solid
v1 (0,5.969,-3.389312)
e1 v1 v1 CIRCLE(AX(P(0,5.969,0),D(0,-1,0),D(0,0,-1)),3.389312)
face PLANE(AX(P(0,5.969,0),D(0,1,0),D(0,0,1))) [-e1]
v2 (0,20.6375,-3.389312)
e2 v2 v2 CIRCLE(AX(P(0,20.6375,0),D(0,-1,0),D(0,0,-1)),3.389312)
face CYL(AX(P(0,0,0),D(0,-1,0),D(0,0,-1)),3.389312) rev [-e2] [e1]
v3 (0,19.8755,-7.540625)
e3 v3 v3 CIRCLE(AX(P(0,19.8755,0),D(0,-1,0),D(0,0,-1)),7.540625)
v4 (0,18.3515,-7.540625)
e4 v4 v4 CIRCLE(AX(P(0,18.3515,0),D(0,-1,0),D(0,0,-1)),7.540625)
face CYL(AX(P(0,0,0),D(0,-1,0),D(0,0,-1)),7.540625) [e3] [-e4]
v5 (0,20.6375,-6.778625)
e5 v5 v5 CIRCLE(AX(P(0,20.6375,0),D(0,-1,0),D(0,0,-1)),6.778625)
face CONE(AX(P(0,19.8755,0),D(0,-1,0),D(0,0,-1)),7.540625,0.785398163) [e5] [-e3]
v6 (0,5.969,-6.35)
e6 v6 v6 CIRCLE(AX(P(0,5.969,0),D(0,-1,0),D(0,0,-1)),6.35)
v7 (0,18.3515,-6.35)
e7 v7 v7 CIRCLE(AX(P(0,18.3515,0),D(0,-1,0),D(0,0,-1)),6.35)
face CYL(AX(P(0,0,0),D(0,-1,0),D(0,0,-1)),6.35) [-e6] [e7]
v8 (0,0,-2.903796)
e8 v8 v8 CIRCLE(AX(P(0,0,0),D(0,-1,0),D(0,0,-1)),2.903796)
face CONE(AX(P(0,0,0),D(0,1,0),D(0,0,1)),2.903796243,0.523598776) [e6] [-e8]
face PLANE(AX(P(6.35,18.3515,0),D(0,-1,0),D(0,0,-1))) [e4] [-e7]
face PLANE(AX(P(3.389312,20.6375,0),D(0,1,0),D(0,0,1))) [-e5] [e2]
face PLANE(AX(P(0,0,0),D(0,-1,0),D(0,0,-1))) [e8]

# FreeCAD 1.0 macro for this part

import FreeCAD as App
import Part
import Sketcher
from FreeCAD import Vector
Q = App.Units.Quantity


def add_polygon(sketch, points):
    """Adds a closed chain of lines whose ends are joined by coincident constraints."""
    first, n = sketch.GeometryCount, len(points)
    for a, b in zip(points, points[1:] + points[:1]):
        sketch.addGeometry(Part.LineSegment(App.Vector(*a, 0), App.Vector(*b, 0)), False)
    for i in range(n):
        sketch.addConstraint(Sketcher.Constraint("Coincident", first + i, 2, first + (i + 1) % n, 1))

doc = App.newDocument("Part")
body = doc.addObject("PartDesign::Body", "Body")

sketch1 = body.newObject("Sketcher::SketchObject", "Sketch")
sketch1.AttachmentSupport = (doc.getObject("XY_Plane"), [""])
sketch1.MapMode = "FlatFace"
add_polygon(sketch1, [(3.4, 6), (0, 6), (0, 0), (2.9, 0), (6.3, 6), (6.3, 18.4), (7.5, 18.4), (7.5, 19.9), (6.8, 20.6), (3.4, 20.6)])
sketch1.addConstraint([
    Sketcher.Constraint("Horizontal", 0),
    Sketcher.Constraint("Vertical", 1),
    Sketcher.Constraint("Horizontal", 2),
    Sketcher.Constraint("Vertical", 4),
    Sketcher.Constraint("Horizontal", 5),
    Sketcher.Constraint("Vertical", 6),
    Sketcher.Constraint("Horizontal", 8),
    Sketcher.Constraint("Vertical", 9),
    Sketcher.Constraint("Coincident", 1, 2, -1, 1),
    Sketcher.Constraint("Horizontal", 0, 2, 3, 2),
    Sketcher.Constraint("Equal", 0, 8),
    Sketcher.Constraint("Angle", 3, Q("60 deg")),
    Sketcher.Constraint("Angle", 7, Q("135 deg")),
    Sketcher.Constraint("DistanceY", 6, 1, 6, 2, Q("0.06 in")),
    Sketcher.Constraint("DistanceX", 5, 1, 5, 2, Q("0.046875 in")),
    Sketcher.Constraint("DistanceY", 1, 2, 1, 1, Q("0.235 in")),
    Sketcher.Constraint("DistanceX", -1, 1, 3, 2, Q("0.25 in")),
    Sketcher.Constraint("DistanceX", 7, 2, 6, 2, Q("0.03 in")),
    Sketcher.Constraint("DistanceY", 4, 1, 4, 2, Q("0.4875 in")),
])
revolution = body.newObject("PartDesign::Revolution", "Revolution")
revolution.Profile = sketch1
revolution.ReferenceAxis = (sketch1, ["V_Axis"])
revolution.Angle = 360

doc.recompute()
